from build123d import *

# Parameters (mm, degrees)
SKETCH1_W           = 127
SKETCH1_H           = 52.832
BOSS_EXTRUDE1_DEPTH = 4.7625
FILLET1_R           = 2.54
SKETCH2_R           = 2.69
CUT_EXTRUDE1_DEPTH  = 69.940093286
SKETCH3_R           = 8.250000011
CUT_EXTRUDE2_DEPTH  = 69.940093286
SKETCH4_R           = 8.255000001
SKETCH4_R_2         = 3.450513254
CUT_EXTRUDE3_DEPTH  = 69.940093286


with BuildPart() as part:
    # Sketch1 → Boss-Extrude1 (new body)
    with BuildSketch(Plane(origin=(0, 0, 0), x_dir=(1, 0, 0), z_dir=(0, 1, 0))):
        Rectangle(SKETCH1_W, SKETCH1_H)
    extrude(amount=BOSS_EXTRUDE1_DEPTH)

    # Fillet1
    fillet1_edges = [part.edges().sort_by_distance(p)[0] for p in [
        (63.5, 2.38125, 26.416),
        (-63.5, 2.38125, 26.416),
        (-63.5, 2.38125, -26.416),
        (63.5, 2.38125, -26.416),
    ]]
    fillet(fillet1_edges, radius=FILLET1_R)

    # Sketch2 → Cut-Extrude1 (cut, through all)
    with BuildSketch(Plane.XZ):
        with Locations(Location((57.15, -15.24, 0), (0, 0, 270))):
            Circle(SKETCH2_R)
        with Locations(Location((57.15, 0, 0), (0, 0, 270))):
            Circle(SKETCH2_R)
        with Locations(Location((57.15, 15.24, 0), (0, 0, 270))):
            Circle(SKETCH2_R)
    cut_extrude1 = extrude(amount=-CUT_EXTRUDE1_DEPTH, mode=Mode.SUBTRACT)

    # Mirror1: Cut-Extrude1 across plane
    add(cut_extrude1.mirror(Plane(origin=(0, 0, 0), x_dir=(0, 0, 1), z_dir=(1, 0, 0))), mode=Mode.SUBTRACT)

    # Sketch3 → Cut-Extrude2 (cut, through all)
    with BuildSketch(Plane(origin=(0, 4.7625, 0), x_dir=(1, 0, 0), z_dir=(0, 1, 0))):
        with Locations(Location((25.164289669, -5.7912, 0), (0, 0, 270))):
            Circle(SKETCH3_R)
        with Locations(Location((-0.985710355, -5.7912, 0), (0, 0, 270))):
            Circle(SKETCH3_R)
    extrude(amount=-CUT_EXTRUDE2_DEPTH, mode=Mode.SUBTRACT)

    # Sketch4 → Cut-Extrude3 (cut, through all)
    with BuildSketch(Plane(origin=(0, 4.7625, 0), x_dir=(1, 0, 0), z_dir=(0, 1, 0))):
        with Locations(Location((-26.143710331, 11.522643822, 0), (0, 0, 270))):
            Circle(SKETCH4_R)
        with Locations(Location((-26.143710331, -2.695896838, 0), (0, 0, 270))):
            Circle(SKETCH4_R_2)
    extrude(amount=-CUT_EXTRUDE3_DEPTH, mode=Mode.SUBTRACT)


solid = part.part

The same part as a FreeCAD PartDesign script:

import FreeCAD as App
import Part
import Sketcher

V = App.Vector
Q = App.Units.Quantity


def edges_at(feature, points):
    """Names of the edges that pass closest to the given points."""
    edges = feature.Shape.Edges
    near = lambda p: min(range(len(edges)), key=lambda i: edges[i].distToShape(Part.Vertex(*p))[0])
    return sorted({f"Edge{near(p) + 1}" for p in points})


def add_polygon(sketch, points):
    """Adds a closed chain of lines whose ends are joined by coincident constraints."""
    first, n = sketch.GeometryCount, len(points)
    for a, b in zip(points, points[1:] + points[:1]):
        sketch.addGeometry(Part.LineSegment(App.Vector(*a, 0), App.Vector(*b, 0)), False)
    for i in range(n):
        sketch.addConstraint(Sketcher.Constraint("Coincident", first + i, 2, first + (i + 1) % n, 1))

doc = App.newDocument("Part")
params = doc.addObject("Spreadsheet::Sheet", "Params")
for row, (alias, value) in enumerate([
    ("sketch1_width", "5 in"),
    ("sketch1_height", "2.08 in"),
    ("pad1_length", "0.1875 in"),
    ("fillet_radius", "0.1 in"),
    ("sketch4_diameter", "0.65 in"),
], start=1):
    params.set(f"A{row}", alias)
    params.set(f"B{row}", "=" + value)
    params.setAlias(f"B{row}", alias)

body = doc.addObject("PartDesign::Body", "Body")

# Sketch on XZ plane
sketch1 = doc.addObject("Sketcher::SketchObject", "Sketch")
body.addObject(sketch1)
sketch1.AttachmentSupport = (doc.XZ_Plane, [""])
sketch1.MapMode = "FlatFace"
add_polygon(sketch1, [(-64, -26), (-64, 26), (64, 26), (64, -26)])  # lines 0-3
sketch1.addConstraint(Sketcher.Constraint("Vertical", 0))
sketch1.addConstraint(Sketcher.Constraint("Horizontal", 1))
sketch1.addConstraint(Sketcher.Constraint("Vertical", 2))
sketch1.addConstraint(Sketcher.Constraint("Horizontal", 3))
sketch1.addConstraint(Sketcher.Constraint("Symmetric", 0, 2, 2, 2, -1, 1))
sketch1.addConstraint(Sketcher.Constraint("DistanceX", 1, 1, 1, 2, Q("5 in")))
sketch1.addConstraint(Sketcher.Constraint("DistanceY", 0, 1, 0, 2, Q("2.08 in")))
sketch1.setExpression("Constraints[9]", "Params.sketch1_width")
sketch1.setExpression("Constraints[10]", "Params.sketch1_height")
pad1 = doc.addObject("PartDesign::Pad", "Pad")
body.addObject(pad1)
pad1.Profile = sketch1
pad1.setExpression("Length", "Params.pad1_length")
pad1.Reversed = True
doc.recompute()

fillet = doc.addObject("PartDesign::Fillet", "Fillet")
body.addObject(fillet)
fillet.Base = (pad1, edges_at(pad1, [
    (63.5, 2.381, 26.416),
    (-63.5, 2.381, 26.416),
    (-63.5, 2.381, -26.416),
    (63.5, 2.381, -26.416),
]))
fillet.setExpression("Radius", "Params.fillet_radius")

# Sketch on XZ plane
sketch2 = doc.addObject("Sketcher::SketchObject", "Sketch001")
body.addObject(sketch2)
sketch2.AttachmentSupport = (doc.XZ_Plane, [""])
sketch2.MapMode = "FlatFace"
sketch2.addGeometry(Part.Circle(V(57.1, -15.2, 0), V(0, 0, 1), 2.7), False)
sketch2.addGeometry(Part.Circle(V(57.1, 0, 0), V(0, 0, 1), 2.7), False)
sketch2.addGeometry(Part.Circle(V(57.1, 15.2, 0), V(0, 0, 1), 2.7), False)
sketch2.addConstraint(Sketcher.Constraint("Equal", 0, 1))
sketch2.addConstraint(Sketcher.Constraint("Equal", 1, 2))
sketch2.addConstraint(Sketcher.Constraint("Symmetric", 0, 3, 2, 3, -1))
sketch2.addConstraint(Sketcher.Constraint("PointOnObject", 1, 3, -1))
sketch2.addConstraint(Sketcher.Constraint("Vertical", 0, 3, 1, 3))
sketch2.addConstraint(Sketcher.Constraint("DistanceY", 0, 3, -1, 1, Q("0.6 in")))
sketch2.addConstraint(Sketcher.Constraint("Diameter", 0, 5.38))
sketch2.addConstraint(Sketcher.Constraint("DistanceX", -1, 1, 0, 3, Q("2.25 in")))
pocket1 = doc.addObject("PartDesign::Pocket", "Pocket")
body.addObject(pocket1)
pocket1.Profile = sketch2
pocket1.Type = "ThroughAll"
doc.recompute()

mirrored = doc.addObject("PartDesign::Mirrored", "Mirrored")
body.addObject(mirrored)
mirrored.Originals = [pocket1]
mirrored.MirrorPlane = (doc.YZ_Plane, [""])
body.Tip = mirrored

# Sketch on XZ plane
sketch3 = doc.addObject("Sketcher::SketchObject", "Sketch002")
body.addObject(sketch3)
sketch3.AttachmentSupport = (doc.XZ_Plane, [""])
sketch3.MapMode = "FlatFace"
sketch3.AttachmentOffset = App.Placement(V(0, 0, -0.1875 * 25.4), App.Rotation())
sketch3.addGeometry(Part.Circle(V(25, 6, 0), V(0, 0, 1), 8), False)
sketch3.addGeometry(Part.Circle(V(-1, 6, 0), V(0, 0, 1), 8), False)
sketch3.addConstraint(Sketcher.Constraint("Equal", 0, 1))
sketch3.addConstraint(Sketcher.Constraint("Horizontal", 0, 3, 1, 3))
sketch3.addConstraint(Sketcher.Constraint("Diameter", 0, 16.5))
sketch3.addConstraint(Sketcher.Constraint("DistanceY", -1, 1, 0, 3, Q("0.228 in")))
sketch3.addConstraint(Sketcher.Constraint("DistanceX", 1, 3, 0, 3, 26.15))
sketch3.addConstraint(Sketcher.Constraint("DistanceX", -1, 1, 0, 3, 25.16429))
pocket2 = doc.addObject("PartDesign::Pocket", "Pocket001")
body.addObject(pocket2)
pocket2.Profile = sketch3
pocket2.Type = "ThroughAll"
pocket2.Reversed = True

# Sketch on XZ plane
sketch4 = doc.addObject("Sketcher::SketchObject", "Sketch003")
body.addObject(sketch4)
sketch4.AttachmentSupport = (doc.XZ_Plane, [""])
sketch4.MapMode = "FlatFace"
sketch4.AttachmentOffset = App.Placement(V(0, 0, -0.1875 * 25.4), App.Rotation())
sketch4.addGeometry(Part.Circle(V(-26.1, -11.5, 0), V(0, 0, 1), 8.3), False)
sketch4.addGeometry(Part.Circle(V(-26.1, 2.7, 0), V(0, 0, 1), 3.5), False)
sketch4.addConstraint(Sketcher.Constraint("Vertical", 0, 3, 1, 3))
sketch4.addConstraint(Sketcher.Constraint("Diameter", 0, Q("0.65 in")))
sketch4.addConstraint(Sketcher.Constraint("Diameter", 1, 6.901027))
sketch4.addConstraint(Sketcher.Constraint("DistanceX", 0, 3, -1, 1, 26.14371))
sketch4.addConstraint(Sketcher.Constraint("DistanceY", 0, 3, 1, 3, 14.218541))
sketch4.addConstraint(Sketcher.Constraint("DistanceY", 0, 3, -1, 1, 11.522644))
sketch4.setExpression("Constraints[1]", "Params.sketch4_diameter")
pocket3 = doc.addObject("PartDesign::Pocket", "Pocket002")
body.addObject(pocket3)
pocket3.Profile = sketch4
pocket3.Type = "ThroughAll"
pocket3.Reversed = True

doc.recompute()
